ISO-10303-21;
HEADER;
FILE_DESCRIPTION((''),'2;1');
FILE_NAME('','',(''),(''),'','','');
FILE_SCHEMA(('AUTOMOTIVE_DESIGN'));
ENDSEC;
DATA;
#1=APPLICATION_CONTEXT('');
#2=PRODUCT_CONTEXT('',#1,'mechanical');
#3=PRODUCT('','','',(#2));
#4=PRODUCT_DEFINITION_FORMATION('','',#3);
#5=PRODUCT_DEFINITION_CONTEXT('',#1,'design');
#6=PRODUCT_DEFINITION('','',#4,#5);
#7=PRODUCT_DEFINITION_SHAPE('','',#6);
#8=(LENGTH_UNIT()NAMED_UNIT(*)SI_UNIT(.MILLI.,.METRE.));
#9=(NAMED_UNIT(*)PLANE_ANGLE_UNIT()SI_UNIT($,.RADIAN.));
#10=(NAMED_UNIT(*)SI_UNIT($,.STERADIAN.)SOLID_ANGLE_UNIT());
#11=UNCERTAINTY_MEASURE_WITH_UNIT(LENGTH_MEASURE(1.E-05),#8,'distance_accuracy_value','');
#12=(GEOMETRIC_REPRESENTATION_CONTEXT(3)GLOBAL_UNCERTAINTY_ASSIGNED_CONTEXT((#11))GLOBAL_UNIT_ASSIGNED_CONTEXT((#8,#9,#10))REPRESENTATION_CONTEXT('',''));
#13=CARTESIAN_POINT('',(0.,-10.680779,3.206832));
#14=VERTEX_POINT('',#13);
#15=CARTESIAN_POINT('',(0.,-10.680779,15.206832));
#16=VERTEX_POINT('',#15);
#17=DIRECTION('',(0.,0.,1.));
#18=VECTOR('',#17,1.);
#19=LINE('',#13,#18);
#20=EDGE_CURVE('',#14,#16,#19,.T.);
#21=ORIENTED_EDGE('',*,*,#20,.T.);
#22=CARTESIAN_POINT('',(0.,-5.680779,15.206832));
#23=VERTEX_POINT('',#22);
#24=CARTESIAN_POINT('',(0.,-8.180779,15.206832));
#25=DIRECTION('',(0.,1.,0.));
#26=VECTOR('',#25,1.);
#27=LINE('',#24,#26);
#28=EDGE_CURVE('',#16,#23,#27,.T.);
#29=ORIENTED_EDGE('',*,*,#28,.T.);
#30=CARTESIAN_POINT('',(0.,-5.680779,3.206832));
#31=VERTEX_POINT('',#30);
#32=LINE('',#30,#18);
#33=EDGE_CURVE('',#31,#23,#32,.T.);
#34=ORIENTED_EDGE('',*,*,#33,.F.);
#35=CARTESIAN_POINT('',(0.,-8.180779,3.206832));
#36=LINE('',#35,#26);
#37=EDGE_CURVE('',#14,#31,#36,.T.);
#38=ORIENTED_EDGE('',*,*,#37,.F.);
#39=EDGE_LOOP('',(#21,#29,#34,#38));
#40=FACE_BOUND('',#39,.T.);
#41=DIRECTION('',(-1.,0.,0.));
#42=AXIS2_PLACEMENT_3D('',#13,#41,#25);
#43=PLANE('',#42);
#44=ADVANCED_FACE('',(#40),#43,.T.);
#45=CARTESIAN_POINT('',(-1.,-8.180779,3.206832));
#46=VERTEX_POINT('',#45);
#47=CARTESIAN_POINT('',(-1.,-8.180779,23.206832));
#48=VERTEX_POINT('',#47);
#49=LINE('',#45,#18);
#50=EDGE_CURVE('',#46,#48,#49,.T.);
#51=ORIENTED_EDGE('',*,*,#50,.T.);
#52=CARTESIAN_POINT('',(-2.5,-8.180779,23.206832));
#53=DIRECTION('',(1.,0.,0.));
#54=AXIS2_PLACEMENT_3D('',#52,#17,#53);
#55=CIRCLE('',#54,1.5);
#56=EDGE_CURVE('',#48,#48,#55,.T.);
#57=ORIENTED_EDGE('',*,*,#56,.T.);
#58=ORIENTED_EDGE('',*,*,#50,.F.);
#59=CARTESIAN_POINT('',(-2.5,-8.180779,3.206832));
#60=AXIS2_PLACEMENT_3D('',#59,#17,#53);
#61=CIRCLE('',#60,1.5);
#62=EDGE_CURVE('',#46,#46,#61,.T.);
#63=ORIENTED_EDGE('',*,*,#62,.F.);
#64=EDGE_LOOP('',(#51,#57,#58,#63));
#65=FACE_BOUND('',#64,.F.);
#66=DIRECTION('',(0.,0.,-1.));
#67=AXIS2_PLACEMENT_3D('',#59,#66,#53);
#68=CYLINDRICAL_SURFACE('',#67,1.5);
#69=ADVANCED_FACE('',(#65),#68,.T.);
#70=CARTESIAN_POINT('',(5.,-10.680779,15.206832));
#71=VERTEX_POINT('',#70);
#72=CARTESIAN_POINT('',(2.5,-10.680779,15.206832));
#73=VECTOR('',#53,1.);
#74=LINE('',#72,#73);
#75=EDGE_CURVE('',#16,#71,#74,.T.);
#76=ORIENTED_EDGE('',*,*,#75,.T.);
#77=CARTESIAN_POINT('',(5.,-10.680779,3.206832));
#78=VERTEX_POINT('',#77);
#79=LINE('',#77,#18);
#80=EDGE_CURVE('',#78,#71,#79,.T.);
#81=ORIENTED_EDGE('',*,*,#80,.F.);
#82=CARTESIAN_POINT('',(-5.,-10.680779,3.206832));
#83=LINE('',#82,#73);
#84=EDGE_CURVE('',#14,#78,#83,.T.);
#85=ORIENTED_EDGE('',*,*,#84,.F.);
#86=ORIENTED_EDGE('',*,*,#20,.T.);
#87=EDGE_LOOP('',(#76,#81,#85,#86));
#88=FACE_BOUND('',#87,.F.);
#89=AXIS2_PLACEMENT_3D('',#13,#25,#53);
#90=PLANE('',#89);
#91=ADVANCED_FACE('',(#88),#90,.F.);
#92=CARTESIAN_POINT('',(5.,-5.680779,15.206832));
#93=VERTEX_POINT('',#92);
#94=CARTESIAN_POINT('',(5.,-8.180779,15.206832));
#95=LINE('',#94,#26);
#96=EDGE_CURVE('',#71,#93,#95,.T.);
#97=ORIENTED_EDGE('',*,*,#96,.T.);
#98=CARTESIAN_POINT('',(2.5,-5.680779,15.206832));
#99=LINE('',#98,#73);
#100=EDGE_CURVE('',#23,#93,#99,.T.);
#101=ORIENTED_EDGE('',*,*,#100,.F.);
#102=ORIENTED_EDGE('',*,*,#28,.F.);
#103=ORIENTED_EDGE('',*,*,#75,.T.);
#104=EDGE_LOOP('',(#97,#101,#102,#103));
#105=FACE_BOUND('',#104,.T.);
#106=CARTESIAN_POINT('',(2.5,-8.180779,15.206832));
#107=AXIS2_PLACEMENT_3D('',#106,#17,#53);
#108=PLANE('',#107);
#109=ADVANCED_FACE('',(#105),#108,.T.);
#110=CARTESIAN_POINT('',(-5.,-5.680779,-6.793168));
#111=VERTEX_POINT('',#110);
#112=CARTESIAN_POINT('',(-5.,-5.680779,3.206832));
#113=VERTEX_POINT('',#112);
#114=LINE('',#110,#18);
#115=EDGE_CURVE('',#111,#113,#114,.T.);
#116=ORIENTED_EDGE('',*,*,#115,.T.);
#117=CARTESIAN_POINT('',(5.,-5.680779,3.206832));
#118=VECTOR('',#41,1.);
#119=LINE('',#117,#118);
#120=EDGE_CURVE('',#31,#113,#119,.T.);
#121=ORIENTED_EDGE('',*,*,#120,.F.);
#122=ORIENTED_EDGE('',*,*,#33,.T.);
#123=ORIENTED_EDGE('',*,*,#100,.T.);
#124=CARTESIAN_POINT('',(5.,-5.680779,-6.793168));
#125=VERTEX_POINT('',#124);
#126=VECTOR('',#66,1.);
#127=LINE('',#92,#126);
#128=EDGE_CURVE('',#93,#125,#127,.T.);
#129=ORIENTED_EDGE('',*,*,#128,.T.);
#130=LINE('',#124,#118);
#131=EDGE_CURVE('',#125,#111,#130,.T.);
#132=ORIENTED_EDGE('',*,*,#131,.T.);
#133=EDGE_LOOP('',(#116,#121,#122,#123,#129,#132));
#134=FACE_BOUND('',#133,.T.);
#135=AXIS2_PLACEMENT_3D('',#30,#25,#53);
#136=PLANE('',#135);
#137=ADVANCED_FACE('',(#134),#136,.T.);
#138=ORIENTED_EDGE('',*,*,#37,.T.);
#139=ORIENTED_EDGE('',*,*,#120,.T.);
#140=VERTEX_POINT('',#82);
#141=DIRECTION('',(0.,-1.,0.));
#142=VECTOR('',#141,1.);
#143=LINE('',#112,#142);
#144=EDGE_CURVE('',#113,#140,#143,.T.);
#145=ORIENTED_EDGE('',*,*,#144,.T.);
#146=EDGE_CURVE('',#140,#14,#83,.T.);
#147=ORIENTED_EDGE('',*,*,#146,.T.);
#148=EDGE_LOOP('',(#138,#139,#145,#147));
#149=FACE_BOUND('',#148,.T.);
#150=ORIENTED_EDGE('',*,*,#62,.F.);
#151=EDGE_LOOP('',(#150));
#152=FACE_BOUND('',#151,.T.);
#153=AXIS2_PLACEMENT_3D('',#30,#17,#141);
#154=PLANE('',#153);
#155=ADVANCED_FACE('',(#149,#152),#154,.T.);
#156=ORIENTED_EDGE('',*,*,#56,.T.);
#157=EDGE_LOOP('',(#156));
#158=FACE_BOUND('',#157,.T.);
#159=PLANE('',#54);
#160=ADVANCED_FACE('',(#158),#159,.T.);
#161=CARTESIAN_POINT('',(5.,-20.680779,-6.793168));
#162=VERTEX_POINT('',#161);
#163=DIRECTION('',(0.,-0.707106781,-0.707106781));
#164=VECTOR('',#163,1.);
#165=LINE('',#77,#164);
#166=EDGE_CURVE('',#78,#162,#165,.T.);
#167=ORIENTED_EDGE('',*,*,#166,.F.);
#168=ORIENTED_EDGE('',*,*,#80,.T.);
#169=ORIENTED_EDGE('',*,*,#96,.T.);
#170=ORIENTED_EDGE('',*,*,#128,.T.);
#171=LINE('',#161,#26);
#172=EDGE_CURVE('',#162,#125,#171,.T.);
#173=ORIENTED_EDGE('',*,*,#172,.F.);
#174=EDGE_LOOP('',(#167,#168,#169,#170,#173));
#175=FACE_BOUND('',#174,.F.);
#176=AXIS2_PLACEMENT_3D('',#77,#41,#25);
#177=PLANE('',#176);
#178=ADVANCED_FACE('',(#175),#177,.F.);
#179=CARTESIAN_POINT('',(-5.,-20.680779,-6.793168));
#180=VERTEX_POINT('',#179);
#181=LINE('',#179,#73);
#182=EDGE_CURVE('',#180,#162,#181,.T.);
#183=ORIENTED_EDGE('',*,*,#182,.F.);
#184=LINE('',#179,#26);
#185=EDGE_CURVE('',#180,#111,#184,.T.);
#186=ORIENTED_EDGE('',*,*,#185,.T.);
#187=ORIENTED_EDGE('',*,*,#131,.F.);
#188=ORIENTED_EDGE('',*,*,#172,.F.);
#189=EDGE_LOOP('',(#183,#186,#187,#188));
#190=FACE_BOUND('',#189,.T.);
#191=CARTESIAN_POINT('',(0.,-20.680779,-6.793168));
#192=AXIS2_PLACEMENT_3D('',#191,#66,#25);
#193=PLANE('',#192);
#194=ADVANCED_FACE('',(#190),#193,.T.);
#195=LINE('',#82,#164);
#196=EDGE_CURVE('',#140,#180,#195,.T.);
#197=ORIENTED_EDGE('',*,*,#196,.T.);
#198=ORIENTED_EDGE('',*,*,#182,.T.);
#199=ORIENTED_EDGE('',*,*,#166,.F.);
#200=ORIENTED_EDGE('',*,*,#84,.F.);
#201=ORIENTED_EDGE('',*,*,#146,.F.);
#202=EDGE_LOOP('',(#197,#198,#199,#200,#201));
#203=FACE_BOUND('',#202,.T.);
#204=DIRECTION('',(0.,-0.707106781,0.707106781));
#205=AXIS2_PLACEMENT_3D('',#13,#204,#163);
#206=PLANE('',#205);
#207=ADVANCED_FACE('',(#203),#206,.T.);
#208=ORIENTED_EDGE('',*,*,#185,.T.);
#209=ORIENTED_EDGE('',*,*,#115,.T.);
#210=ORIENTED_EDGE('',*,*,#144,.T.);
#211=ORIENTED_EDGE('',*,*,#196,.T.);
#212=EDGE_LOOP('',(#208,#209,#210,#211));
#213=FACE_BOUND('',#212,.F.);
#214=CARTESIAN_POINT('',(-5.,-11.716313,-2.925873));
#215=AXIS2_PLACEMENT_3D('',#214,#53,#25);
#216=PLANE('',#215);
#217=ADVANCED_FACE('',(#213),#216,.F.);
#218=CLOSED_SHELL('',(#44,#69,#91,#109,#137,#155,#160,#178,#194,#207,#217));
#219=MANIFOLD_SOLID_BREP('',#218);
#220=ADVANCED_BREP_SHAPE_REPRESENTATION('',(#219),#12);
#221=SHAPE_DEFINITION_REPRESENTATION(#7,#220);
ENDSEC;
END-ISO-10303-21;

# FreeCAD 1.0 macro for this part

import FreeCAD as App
import Part
import Sketcher

doc = App.newDocument("Part")
body = doc.addObject("PartDesign::Body", "Body")

sketch1 = body.newObject("Sketcher::SketchObject", "Sketch")
sketch1.AttachmentSupport = (doc.getObject("YZ_Plane"), [""])
sketch1.MapMode = "FlatFace"
sketch1.addGeometry([
    Part.LineSegment(App.Vector(-5.7, 3.2, 0), App.Vector(-10.7, 3.2, 0)),
    Part.LineSegment(App.Vector(-10.7, 3.2, 0), App.Vector(-20.7, -6.8, 0)),
    Part.LineSegment(App.Vector(-20.7, -6.8, 0), App.Vector(-5.7, -6.8, 0)),
    Part.LineSegment(App.Vector(-5.7, -6.8, 0), App.Vector(-5.7, 3.2, 0)),
], False)
sketch1.addConstraint([
    Sketcher.Constraint("Coincident", 0, 2, 1, 1),
    Sketcher.Constraint("Coincident", 1, 2, 2, 1),
    Sketcher.Constraint("Coincident", 2, 2, 3, 1),
    Sketcher.Constraint("Coincident", 3, 2, 0, 1),
    Sketcher.Constraint("Horizontal", 0),
    Sketcher.Constraint("Horizontal", 2),
    Sketcher.Constraint("Vertical", 3),
    Sketcher.Constraint("DistanceX", 0, 2, 0, 1, 5.0),
    Sketcher.Constraint("DistanceX", 2, 1, 2, 2, 15.0),
    Sketcher.Constraint("DistanceY", 3, 1, 3, 2, 10.0),
    Sketcher.Constraint("DistanceX", 0, 2, -1, 1, 10.680779),
    Sketcher.Constraint("DistanceY", -1, 1, 0, 2, 3.206832),
])
pad1 = body.newObject("PartDesign::Pad", "Pad")
pad1.Profile = sketch1
pad1.Length = 10
pad1.Midplane = True

sketch2 = body.newObject("Sketcher::SketchObject", "Sketch001")
sketch2.AttachmentSupport = (doc.getObject("XY_Plane"), [""])
sketch2.MapMode = "FlatFace"
sketch2.AttachmentOffset = App.Placement(App.Vector(0, 0, 3.206832), App.Rotation())
sketch2.addGeometry([
    Part.LineSegment(App.Vector(0, -5.7, 0), App.Vector(0, -10.7, 0)),
    Part.LineSegment(App.Vector(0, -10.7, 0), App.Vector(5, -10.7, 0)),
    Part.LineSegment(App.Vector(5, -10.7, 0), App.Vector(5, -5.7, 0)),
    Part.LineSegment(App.Vector(5, -5.7, 0), App.Vector(0, -5.7, 0)),
], False)
sketch2.addConstraint([
    Sketcher.Constraint("Coincident", 0, 2, 1, 1),
    Sketcher.Constraint("Coincident", 1, 2, 2, 1),
    Sketcher.Constraint("Coincident", 2, 2, 3, 1),
    Sketcher.Constraint("Coincident", 3, 2, 0, 1),
    Sketcher.Constraint("Vertical", 0),
    Sketcher.Constraint("Horizontal", 1),
    Sketcher.Constraint("Vertical", 2),
    Sketcher.Constraint("Horizontal", 3),
    Sketcher.Constraint("PointOnObject", 0, 2, -2),
    Sketcher.Constraint("Equal", 3, 0),
    Sketcher.Constraint("DistanceX", 1, 1, 1, 2, 5.0),
    Sketcher.Constraint("DistanceY", 0, 2, -1, 1, 10.680779),
])
pad2 = body.newObject("PartDesign::Pad", "Pad001")
pad2.Profile = sketch2
pad2.Length = 12

sketch3 = body.newObject("Sketcher::SketchObject", "Sketch002")
sketch3.AttachmentSupport = (doc.getObject("XY_Plane"), [""])
sketch3.MapMode = "FlatFace"
sketch3.AttachmentOffset = App.Placement(App.Vector(0, 0, 3.206832), App.Rotation())
sketch3.addGeometry(Part.Circle(App.Vector(-2.5, -8.2, 0), App.Vector(0, 0, 1), 1.5), False)
sketch3.addConstraint([
    Sketcher.Constraint("Diameter", 0, 3.0),
    Sketcher.Constraint("DistanceX", 0, 3, -1, 1, 2.5),
    Sketcher.Constraint("DistanceY", 0, 3, -1, 1, 8.180779),
])
pad3 = body.newObject("PartDesign::Pad", "Pad002")
pad3.Profile = sketch3
pad3.Length = 20

doc.recompute()
